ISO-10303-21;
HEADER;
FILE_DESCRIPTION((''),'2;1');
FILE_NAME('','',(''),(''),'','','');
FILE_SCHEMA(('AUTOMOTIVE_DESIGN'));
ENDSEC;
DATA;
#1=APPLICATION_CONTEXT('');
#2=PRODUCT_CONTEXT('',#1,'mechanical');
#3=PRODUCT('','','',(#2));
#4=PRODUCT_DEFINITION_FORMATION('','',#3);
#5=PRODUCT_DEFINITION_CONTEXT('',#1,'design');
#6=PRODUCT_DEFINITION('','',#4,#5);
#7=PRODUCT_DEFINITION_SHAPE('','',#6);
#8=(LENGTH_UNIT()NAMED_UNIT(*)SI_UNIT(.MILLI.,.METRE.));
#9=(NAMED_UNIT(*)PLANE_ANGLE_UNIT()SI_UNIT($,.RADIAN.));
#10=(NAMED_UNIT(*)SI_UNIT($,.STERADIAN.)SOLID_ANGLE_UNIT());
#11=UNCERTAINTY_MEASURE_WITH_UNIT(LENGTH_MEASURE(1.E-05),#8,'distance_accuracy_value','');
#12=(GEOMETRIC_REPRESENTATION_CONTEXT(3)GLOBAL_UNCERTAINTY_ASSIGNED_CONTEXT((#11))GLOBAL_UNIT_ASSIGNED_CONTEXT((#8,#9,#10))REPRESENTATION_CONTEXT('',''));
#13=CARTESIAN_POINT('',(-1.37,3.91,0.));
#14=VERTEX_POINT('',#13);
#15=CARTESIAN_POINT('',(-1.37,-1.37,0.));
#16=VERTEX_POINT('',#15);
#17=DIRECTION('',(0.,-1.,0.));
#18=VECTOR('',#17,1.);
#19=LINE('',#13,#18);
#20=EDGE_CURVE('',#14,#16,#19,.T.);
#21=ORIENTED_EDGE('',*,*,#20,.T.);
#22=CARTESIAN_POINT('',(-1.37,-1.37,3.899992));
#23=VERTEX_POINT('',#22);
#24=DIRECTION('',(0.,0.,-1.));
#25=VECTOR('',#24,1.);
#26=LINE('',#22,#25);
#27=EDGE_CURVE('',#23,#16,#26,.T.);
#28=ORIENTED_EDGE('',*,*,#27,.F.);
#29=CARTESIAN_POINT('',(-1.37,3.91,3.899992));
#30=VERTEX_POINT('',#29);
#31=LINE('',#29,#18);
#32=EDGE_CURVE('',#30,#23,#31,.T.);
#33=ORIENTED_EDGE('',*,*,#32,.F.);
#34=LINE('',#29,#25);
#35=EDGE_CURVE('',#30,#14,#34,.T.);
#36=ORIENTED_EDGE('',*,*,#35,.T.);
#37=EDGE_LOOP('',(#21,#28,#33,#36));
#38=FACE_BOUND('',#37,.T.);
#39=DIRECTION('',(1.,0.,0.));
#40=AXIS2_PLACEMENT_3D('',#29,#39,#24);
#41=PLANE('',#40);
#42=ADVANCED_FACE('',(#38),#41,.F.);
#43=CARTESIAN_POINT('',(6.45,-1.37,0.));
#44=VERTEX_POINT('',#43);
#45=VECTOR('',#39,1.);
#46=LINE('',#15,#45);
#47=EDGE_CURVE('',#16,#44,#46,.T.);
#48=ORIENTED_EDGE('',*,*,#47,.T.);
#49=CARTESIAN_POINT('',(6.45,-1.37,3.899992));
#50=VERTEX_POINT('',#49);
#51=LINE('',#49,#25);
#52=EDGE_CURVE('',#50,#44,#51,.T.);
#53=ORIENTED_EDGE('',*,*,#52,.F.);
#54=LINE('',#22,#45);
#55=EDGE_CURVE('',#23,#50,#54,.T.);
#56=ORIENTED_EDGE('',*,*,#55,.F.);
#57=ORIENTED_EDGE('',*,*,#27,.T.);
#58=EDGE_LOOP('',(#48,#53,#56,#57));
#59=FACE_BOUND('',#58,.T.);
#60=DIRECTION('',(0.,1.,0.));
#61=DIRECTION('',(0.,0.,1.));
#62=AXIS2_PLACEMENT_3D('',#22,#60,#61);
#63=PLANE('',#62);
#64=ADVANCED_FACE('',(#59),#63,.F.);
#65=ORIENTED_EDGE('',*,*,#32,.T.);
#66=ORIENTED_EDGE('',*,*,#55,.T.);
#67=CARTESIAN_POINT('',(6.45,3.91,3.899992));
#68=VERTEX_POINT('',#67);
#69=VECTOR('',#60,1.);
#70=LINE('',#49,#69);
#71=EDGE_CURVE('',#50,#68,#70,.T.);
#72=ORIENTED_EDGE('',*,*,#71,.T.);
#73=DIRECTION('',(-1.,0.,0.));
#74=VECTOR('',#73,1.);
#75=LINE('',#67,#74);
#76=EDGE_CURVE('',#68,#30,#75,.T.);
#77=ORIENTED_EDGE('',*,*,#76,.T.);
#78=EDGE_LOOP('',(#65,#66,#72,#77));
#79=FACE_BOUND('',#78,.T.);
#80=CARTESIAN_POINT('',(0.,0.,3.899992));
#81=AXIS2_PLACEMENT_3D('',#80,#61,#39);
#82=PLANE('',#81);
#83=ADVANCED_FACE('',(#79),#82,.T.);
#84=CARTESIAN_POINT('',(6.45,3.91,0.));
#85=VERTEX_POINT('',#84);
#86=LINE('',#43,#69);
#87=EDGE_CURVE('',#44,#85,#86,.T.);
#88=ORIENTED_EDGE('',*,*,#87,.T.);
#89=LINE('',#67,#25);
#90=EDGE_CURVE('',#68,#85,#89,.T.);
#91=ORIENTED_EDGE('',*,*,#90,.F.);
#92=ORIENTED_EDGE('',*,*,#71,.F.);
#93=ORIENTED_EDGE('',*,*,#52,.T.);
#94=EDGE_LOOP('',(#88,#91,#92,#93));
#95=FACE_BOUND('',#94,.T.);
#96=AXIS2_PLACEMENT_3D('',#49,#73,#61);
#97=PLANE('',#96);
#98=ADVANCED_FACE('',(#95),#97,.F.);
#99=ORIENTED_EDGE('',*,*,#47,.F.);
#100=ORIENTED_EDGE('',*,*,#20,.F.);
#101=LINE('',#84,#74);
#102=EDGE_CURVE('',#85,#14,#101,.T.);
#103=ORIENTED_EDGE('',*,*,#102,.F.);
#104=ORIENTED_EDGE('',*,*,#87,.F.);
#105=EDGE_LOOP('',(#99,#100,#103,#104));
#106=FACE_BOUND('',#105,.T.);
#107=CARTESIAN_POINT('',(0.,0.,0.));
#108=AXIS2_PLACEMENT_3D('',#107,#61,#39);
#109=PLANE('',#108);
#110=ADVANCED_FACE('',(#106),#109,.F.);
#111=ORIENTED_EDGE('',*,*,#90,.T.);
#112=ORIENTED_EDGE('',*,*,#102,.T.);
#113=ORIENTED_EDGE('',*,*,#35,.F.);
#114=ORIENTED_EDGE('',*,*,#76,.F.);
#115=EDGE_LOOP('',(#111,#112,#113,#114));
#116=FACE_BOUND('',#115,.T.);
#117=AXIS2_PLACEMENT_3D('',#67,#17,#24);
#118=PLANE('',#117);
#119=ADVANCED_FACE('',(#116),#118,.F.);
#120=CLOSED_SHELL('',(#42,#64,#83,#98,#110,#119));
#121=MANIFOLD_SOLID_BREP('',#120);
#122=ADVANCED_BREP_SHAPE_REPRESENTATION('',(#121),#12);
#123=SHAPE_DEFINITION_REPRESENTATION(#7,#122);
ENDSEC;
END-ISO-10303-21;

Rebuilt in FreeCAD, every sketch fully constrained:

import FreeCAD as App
import Part
import Sketcher
from FreeCAD import Vector


def add_polygon(sketch, points):
    """Adds a closed chain of lines whose ends are joined by coincident constraints."""
    first, n = sketch.GeometryCount, len(points)
    for a, b in zip(points, points[1:] + points[:1]):
        sketch.addGeometry(Part.LineSegment(App.Vector(*a, 0), App.Vector(*b, 0)), False)
    for i in range(n):
        sketch.addConstraint(Sketcher.Constraint("Coincident", first + i, 2, first + (i + 1) % n, 1))

doc = App.newDocument("Part")
body = doc.addObject("PartDesign::Body", "Body")

sketch1 = body.newObject("Sketcher::SketchObject", "Sketch")
sketch1.AttachmentSupport = (doc.getObject("XY_Plane"), [""])
sketch1.MapMode = "FlatFace"
add_polygon(sketch1, [(-1.37, 3.91), (-1.37, -1.37), (6.45, -1.37), (6.45, 3.91)])
sketch1.addConstraint([
    Sketcher.Constraint("Vertical", 0),
    Sketcher.Constraint("Horizontal", 1),
    Sketcher.Constraint("Vertical", 2),
    Sketcher.Constraint("Horizontal", 3),
    Sketcher.Constraint("DistanceX", 1, 1, 1, 2, 7.82),
    Sketcher.Constraint("DistanceY", 0, 2, 0, 1, 5.28),
    Sketcher.Constraint("DistanceX", 0, 2, -1, 1, 1.37),
    Sketcher.Constraint("DistanceY", 0, 2, -1, 1, 1.37),
])
pad1 = body.newObject("PartDesign::Pad", "Pad")
pad1.Profile = sketch1
pad1.Length = 3.899992

doc.recompute()
